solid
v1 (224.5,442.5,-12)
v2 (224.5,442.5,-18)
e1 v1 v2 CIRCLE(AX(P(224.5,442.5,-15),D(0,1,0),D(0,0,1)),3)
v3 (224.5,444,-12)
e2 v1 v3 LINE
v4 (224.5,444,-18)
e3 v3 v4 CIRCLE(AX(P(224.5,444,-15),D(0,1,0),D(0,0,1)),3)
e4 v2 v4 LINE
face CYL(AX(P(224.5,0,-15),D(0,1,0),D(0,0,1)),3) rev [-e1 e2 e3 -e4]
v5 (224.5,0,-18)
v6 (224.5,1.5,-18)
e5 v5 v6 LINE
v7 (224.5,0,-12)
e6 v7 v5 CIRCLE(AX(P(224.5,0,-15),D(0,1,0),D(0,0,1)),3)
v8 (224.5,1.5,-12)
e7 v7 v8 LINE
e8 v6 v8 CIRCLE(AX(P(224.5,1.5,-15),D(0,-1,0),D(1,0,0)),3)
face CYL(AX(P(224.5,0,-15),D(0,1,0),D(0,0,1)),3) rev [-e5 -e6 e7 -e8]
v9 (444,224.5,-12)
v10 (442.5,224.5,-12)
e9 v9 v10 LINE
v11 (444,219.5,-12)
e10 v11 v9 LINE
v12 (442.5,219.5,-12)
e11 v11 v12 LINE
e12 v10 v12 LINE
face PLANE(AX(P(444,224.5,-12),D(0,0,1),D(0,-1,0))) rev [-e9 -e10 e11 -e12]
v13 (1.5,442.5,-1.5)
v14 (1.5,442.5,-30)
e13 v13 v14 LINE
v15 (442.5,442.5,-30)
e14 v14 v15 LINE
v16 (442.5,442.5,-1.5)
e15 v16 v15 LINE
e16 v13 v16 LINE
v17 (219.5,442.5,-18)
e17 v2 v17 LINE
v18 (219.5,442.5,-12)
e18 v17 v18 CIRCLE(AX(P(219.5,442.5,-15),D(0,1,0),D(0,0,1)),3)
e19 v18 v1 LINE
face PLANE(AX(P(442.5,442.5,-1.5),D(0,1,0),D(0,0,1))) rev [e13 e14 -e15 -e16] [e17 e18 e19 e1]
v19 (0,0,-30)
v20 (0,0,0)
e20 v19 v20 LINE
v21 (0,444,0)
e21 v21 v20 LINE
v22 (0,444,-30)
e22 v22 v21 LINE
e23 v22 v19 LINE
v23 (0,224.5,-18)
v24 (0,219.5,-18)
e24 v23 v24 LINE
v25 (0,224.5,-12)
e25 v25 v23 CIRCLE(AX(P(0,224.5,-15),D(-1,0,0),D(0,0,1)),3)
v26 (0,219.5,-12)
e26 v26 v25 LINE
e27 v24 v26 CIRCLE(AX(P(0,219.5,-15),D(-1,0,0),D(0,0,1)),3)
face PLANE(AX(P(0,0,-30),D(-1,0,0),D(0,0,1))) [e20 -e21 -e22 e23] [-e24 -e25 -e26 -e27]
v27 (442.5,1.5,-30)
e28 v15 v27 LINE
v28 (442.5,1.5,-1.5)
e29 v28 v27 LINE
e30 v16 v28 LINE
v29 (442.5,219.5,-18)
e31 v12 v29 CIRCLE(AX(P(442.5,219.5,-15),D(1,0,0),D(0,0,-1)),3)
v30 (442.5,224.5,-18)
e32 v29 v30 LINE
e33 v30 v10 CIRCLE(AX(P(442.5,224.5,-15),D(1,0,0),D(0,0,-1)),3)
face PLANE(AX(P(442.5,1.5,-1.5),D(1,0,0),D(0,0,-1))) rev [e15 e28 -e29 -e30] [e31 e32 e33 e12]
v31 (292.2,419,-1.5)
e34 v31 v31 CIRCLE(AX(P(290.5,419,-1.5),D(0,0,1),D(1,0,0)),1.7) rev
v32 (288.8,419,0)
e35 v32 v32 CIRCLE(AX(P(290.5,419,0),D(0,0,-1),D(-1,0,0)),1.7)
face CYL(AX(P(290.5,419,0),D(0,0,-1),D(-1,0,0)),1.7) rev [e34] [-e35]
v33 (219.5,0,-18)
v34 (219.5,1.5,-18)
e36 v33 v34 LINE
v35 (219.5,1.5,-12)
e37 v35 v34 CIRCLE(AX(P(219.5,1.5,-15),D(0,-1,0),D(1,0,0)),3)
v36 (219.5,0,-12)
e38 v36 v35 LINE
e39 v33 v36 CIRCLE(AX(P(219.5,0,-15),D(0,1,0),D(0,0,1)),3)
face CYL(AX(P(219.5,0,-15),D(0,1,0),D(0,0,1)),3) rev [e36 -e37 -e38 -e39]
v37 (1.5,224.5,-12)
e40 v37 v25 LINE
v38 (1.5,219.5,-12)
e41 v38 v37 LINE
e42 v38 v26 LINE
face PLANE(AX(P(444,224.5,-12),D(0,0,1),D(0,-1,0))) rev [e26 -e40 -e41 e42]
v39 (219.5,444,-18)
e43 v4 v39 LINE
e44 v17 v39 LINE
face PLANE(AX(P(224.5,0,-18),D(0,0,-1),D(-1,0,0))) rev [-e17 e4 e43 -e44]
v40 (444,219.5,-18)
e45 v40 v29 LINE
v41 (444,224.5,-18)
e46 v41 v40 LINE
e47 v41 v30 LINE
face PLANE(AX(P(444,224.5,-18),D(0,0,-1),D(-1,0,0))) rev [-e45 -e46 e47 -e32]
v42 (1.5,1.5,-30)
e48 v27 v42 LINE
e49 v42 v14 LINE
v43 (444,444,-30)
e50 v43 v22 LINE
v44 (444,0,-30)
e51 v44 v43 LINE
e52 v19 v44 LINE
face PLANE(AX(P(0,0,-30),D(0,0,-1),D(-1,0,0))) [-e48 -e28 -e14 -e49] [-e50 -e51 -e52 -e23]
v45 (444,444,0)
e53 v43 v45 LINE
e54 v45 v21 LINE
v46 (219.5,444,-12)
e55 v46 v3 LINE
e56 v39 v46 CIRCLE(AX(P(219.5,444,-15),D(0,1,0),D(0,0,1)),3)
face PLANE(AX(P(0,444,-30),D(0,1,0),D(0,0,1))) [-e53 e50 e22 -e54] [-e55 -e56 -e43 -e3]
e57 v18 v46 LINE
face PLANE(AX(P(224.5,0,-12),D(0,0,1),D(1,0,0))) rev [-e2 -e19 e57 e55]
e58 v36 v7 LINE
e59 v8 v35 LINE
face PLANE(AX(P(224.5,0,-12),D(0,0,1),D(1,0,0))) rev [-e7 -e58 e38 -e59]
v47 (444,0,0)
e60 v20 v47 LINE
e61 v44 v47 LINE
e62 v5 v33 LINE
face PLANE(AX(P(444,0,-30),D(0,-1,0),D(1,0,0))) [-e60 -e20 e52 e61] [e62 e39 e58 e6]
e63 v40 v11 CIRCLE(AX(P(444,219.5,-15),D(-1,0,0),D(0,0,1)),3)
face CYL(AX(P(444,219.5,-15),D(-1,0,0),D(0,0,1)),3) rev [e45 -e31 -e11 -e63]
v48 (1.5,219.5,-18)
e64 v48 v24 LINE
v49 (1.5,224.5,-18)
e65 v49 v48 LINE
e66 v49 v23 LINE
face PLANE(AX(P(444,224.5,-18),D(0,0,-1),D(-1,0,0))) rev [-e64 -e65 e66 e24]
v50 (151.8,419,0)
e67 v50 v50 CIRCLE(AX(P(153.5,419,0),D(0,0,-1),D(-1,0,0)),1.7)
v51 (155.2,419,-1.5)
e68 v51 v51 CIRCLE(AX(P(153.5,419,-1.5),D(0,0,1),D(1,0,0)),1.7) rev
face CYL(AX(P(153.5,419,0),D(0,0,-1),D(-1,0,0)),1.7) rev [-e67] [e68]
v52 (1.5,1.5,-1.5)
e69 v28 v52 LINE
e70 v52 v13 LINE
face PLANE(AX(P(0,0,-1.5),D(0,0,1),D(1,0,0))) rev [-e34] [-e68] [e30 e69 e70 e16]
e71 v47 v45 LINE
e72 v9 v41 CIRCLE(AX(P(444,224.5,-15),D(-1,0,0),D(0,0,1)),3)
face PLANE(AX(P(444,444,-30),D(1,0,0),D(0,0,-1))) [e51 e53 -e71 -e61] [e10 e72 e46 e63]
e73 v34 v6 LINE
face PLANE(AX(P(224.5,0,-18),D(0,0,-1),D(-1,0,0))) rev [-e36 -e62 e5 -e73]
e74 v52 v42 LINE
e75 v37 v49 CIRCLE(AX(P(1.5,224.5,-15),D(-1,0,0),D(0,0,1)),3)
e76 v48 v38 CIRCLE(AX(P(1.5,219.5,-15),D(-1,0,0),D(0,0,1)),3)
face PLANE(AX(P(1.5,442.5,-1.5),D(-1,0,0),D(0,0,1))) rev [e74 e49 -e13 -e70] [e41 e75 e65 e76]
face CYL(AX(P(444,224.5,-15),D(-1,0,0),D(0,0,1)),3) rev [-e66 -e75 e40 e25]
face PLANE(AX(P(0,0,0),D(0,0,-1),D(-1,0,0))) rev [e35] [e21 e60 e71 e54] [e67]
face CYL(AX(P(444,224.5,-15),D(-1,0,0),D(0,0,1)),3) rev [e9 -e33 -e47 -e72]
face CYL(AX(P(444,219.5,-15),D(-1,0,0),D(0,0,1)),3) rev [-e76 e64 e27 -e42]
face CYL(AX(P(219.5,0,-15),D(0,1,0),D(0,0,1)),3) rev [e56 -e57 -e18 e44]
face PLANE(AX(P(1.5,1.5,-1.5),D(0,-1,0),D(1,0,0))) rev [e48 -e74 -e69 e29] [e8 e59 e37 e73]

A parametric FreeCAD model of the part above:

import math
import FreeCAD as App
import Part
import Sketcher

V = App.Vector

doc = App.newDocument("Part")
body = doc.addObject("PartDesign::Body", "Body")

# Sketch on XY plane
sketch1 = doc.addObject("Sketcher::SketchObject", "Sketch")
body.addObject(sketch1)
sketch1.AttachmentSupport = (doc.XY_Plane, [""])
sketch1.MapMode = "FlatFace"
sketch1.addGeometry([
    Part.LineSegment(V(0, 444, 0), V(0, 0, 0)),
    Part.LineSegment(V(0, 0, 0), V(444, 0, 0)),
    Part.LineSegment(V(444, 0, 0), V(444, 444, 0)),
    Part.LineSegment(V(444, 444, 0), V(0, 444, 0)),
], False)
sketch1.addConstraint([
    Sketcher.Constraint("Coincident", 0, 2, 1, 1),
    Sketcher.Constraint("Coincident", 1, 2, 2, 1),
    Sketcher.Constraint("Coincident", 2, 2, 3, 1),
    Sketcher.Constraint("Coincident", 3, 2, 0, 1),
    Sketcher.Constraint("Vertical", 0),
    Sketcher.Constraint("Horizontal", 1),
    Sketcher.Constraint("Vertical", 2),
    Sketcher.Constraint("Horizontal", 3),
    Sketcher.Constraint("Coincident", 0, 2, -1, 1),
    Sketcher.Constraint("Equal", 3, 0),
    Sketcher.Constraint("DistanceX", 1, 1, 1, 2, 444.0),
])
pad1 = doc.addObject("PartDesign::Pad", "Pad")
body.addObject(pad1)
pad1.Profile = sketch1
pad1.Length = 30
pad1.Reversed = True

# Sketch on XY plane
sketch2 = doc.addObject("Sketcher::SketchObject", "Sketch001")
body.addObject(sketch2)
sketch2.AttachmentSupport = (doc.XY_Plane, [""])
sketch2.MapMode = "FlatFace"
sketch2.AttachmentOffset = App.Placement(V(0, 0, -30), App.Rotation())
sketch2.addGeometry([
    Part.Circle(V(290.5, 419, 0), V(0, 0, 1), 1.7),
    Part.Circle(V(153.5, 419, 0), V(0, 0, 1), 1.7),
], False)
sketch2.addConstraint([
    Sketcher.Constraint("Equal", 0, 1),
    Sketcher.Constraint("Horizontal", 0, 3, 1, 3),
    Sketcher.Constraint("Diameter", 0, 3.4),
    Sketcher.Constraint("DistanceY", -1, 1, 0, 3, 419.0),
    Sketcher.Constraint("DistanceX", 1, 3, 0, 3, 137.0),
    Sketcher.Constraint("DistanceX", -1, 1, 0, 3, 290.5),
])
pocket1 = doc.addObject("PartDesign::Pocket", "Pocket")
body.addObject(pocket1)
pocket1.Profile = sketch2
pocket1.Type = "ThroughAll"
pocket1.Reversed = True

# Sketch on XY plane
sketch3 = doc.addObject("Sketcher::SketchObject", "Sketch002")
body.addObject(sketch3)
sketch3.AttachmentSupport = (doc.XY_Plane, [""])
sketch3.MapMode = "FlatFace"
sketch3.AttachmentOffset = App.Placement(V(0, 0, -30), App.Rotation())
sketch3.addGeometry([
    Part.LineSegment(V(442.5, 442.5, 0), V(442.5, 1.5, 0)),
    Part.LineSegment(V(442.5, 1.5, 0), V(1.5, 1.5, 0)),
    Part.LineSegment(V(1.5, 1.5, 0), V(1.5, 442.5, 0)),
    Part.LineSegment(V(1.5, 442.5, 0), V(442.5, 442.5, 0)),
], False)
sketch3.addConstraint([
    Sketcher.Constraint("Coincident", 0, 2, 1, 1),
    Sketcher.Constraint("Coincident", 1, 2, 2, 1),
    Sketcher.Constraint("Coincident", 2, 2, 3, 1),
    Sketcher.Constraint("Coincident", 3, 2, 0, 1),
    Sketcher.Constraint("Vertical", 0),
    Sketcher.Constraint("Horizontal", 1),
    Sketcher.Constraint("Vertical", 2),
    Sketcher.Constraint("Horizontal", 3),
    Sketcher.Constraint("Equal", 3, 0),
    Sketcher.Constraint("DistanceX", 1, 2, 1, 1, 441.0),
    Sketcher.Constraint("DistanceX", -1, 1, 0, 2, 442.5),
    Sketcher.Constraint("DistanceY", -1, 1, 0, 2, 1.5),
])
pocket2 = doc.addObject("PartDesign::Pocket", "Pocket001")
body.addObject(pocket2)
pocket2.Profile = sketch3
pocket2.Length = 28.5
pocket2.Reversed = True

# Sketch on XZ plane
sketch4 = doc.addObject("Sketcher::SketchObject", "Sketch003")
body.addObject(sketch4)
sketch4.AttachmentSupport = (doc.XZ_Plane, [""])
sketch4.MapMode = "FlatFace"
sketch4.AttachmentOffset = App.Placement(V(0, 0, -444), App.Rotation())
sketch4.addGeometry([
    Part.LineSegment(V(219.5, -12, 0), V(224.5, -12, 0)),
    Part.ArcOfCircle(Part.Circle(V(224.5, -15, 0), V(0, 0, 1), 3), math.radians(-90), math.radians(90)),
    Part.LineSegment(V(224.5, -18, 0), V(219.5, -18, 0)),
    Part.ArcOfCircle(Part.Circle(V(219.5, -15, 0), V(0, 0, 1), 3), math.radians(90), math.radians(270)),
], False)
sketch4.addConstraint([
    Sketcher.Constraint("Tangent", 0, 2, 1, 2),
    Sketcher.Constraint("Tangent", 1, 1, 2, 1),
    Sketcher.Constraint("Tangent", 2, 2, 3, 2),
    Sketcher.Constraint("Tangent", 3, 1, 0, 1),
    Sketcher.Constraint("Horizontal", 0),
    Sketcher.Constraint("Horizontal", 2),
    Sketcher.Constraint("Radius", 1, 3.0),
    Sketcher.Constraint("DistanceX", 0, 1, 0, 2, 5.0),
    Sketcher.Constraint("DistanceY", 1, 3, -1, 1, 15.0),
    Sketcher.Constraint("DistanceX", -1, 1, 1, 3, 224.5),
])
pocket3 = doc.addObject("PartDesign::Pocket", "Pocket002")
body.addObject(pocket3)
pocket3.Profile = sketch4
pocket3.Type = "ThroughAll"
pocket3.Reversed = True

# Sketch on YZ plane
sketch5 = doc.addObject("Sketcher::SketchObject", "Sketch004")
body.addObject(sketch5)
sketch5.AttachmentSupport = (doc.YZ_Plane, [""])
sketch5.MapMode = "FlatFace"
sketch5.addGeometry([
    Part.LineSegment(V(219.5, -12, 0), V(224.5, -12, 0)),
    Part.ArcOfCircle(Part.Circle(V(224.5, -15, 0), V(0, 0, 1), 3), math.radians(-90), math.radians(90)),
    Part.LineSegment(V(224.5, -18, 0), V(219.5, -18, 0)),
    Part.ArcOfCircle(Part.Circle(V(219.5, -15, 0), V(0, 0, 1), 3), math.radians(90), math.radians(270)),
], False)
sketch5.addConstraint([
    Sketcher.Constraint("Tangent", 0, 2, 1, 2),
    Sketcher.Constraint("Tangent", 1, 1, 2, 1),
    Sketcher.Constraint("Tangent", 2, 2, 3, 2),
    Sketcher.Constraint("Tangent", 3, 1, 0, 1),
    Sketcher.Constraint("Horizontal", 0),
    Sketcher.Constraint("Horizontal", 2),
    Sketcher.Constraint("Radius", 1, 3.0),
    Sketcher.Constraint("DistanceX", 0, 1, 0, 2, 5.0),
    Sketcher.Constraint("DistanceY", 1, 3, -1, 1, 15.0),
    Sketcher.Constraint("DistanceX", -1, 1, 1, 3, 224.5),
])
pocket4 = doc.addObject("PartDesign::Pocket", "Pocket003")
body.addObject(pocket4)
pocket4.Profile = sketch5
pocket4.Type = "ThroughAll"
pocket4.Reversed = True

doc.recompute()
